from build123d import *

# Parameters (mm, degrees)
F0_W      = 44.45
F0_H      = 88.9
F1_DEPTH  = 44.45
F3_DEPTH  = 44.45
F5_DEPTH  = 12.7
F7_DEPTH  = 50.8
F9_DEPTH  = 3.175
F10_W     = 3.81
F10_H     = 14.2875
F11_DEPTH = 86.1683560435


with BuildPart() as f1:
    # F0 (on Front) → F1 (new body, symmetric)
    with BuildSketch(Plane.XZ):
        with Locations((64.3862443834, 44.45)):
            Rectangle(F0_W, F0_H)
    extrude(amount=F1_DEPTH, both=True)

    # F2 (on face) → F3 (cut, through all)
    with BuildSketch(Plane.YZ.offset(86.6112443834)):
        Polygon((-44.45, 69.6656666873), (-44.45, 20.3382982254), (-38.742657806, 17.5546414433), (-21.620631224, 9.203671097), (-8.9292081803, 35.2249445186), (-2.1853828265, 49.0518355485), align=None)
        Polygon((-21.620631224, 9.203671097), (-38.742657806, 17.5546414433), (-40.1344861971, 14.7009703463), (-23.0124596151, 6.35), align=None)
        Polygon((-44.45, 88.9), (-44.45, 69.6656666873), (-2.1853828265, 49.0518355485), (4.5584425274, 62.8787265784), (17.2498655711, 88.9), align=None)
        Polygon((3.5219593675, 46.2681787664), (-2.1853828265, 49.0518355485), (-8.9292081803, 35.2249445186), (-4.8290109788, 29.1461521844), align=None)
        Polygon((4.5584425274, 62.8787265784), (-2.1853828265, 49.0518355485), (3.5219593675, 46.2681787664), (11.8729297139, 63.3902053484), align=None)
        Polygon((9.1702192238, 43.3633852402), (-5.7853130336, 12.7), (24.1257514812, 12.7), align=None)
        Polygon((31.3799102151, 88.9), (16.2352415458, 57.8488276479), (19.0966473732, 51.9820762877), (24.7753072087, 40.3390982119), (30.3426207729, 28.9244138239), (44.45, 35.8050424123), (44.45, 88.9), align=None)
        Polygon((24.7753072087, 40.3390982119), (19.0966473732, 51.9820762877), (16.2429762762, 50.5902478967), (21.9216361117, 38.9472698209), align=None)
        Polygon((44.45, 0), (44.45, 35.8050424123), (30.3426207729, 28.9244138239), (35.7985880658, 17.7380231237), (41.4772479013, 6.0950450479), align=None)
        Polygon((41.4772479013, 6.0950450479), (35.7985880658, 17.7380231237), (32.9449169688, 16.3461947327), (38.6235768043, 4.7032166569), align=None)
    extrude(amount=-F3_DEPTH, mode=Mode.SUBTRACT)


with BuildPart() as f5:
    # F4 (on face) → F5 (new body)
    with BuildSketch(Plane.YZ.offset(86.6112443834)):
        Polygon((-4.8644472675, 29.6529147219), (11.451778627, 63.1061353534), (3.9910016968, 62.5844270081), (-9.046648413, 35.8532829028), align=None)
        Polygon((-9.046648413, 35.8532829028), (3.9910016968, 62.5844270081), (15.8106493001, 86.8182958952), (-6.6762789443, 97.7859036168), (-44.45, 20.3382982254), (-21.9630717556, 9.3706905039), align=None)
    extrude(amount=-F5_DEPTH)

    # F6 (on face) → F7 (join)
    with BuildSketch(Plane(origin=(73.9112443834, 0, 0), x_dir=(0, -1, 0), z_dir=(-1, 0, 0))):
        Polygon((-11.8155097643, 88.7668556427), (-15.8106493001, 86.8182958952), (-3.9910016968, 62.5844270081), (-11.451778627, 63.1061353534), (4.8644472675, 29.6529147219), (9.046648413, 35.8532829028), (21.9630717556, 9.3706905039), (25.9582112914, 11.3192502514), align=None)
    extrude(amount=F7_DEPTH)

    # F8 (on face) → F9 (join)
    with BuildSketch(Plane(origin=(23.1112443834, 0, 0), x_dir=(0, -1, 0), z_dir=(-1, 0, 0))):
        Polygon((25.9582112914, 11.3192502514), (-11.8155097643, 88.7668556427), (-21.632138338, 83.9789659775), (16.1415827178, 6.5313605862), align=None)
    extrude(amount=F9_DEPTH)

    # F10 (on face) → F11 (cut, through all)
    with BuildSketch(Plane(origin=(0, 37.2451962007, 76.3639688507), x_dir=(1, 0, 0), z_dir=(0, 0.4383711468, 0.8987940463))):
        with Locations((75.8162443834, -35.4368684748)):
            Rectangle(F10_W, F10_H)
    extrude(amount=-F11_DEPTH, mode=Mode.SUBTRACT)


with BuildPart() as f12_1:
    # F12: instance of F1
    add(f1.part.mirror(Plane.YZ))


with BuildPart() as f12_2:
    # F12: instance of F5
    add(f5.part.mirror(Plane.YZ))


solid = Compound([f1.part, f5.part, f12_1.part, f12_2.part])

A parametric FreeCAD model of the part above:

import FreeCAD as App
import Part
import Sketcher
from FreeCAD import Vector
Q = App.Units.Quantity

doc = App.newDocument("Part")
body = doc.addObject("PartDesign::Body", "Body")

sketch1 = body.newObject("Sketcher::SketchObject", "Sketch")
sketch1.AttachmentSupport = (doc.getObject("XZ_Plane"), [""])
sketch1.MapMode = "FlatFace"
sketch1.addGeometry([
    Part.LineSegment(Vector(42, 89, 0), Vector(42, 0, 0)),
    Part.LineSegment(Vector(42, 0, 0), Vector(87, 0, 0)),
    Part.LineSegment(Vector(87, 0, 0), Vector(87, 89, 0)),
    Part.LineSegment(Vector(87, 89, 0), Vector(42, 89, 0)),
], False)
sketch1.addConstraint([
    Sketcher.Constraint("Coincident", 0, 2, 1, 1),
    Sketcher.Constraint("Coincident", 1, 2, 2, 1),
    Sketcher.Constraint("Coincident", 2, 2, 3, 1),
    Sketcher.Constraint("Coincident", 3, 2, 0, 1),
    Sketcher.Constraint("Vertical", 0),
    Sketcher.Constraint("Horizontal", 1),
    Sketcher.Constraint("Vertical", 2),
    Sketcher.Constraint("Horizontal", 3),
    Sketcher.Constraint("PointOnObject", 0, 2, -1),
    Sketcher.Constraint("DistanceY", 0, 2, 0, 1, Q("3.5 in")),
    Sketcher.Constraint("DistanceX", 1, 1, 1, 2, Q("1.75 in")),
    Sketcher.Constraint("DistanceX", -1, 1, 0, 2, Q("42.161244 mm")),
])
pad1 = body.newObject("PartDesign::Pad", "Pad")
pad1.Profile = sketch1
pad1.Length = Q("3.5 in")
pad1.Midplane = True

sketch2 = body.newObject("Sketcher::SketchObject", "Sketch001")
sketch2.AttachmentSupport = (doc.getObject("YZ_Plane"), [""])
sketch2.MapMode = "FlatFace"
sketch2.AttachmentOffset = App.Placement(Vector(0, 0, 86.611244), App.Rotation())
sketch2.addGeometry([
    Part.LineSegment(Vector(-44.5, 20.3, 0), Vector(-38.7, 17.6, 0)),
    Part.LineSegment(Vector(-38.7, 17.6, 0), Vector(-40.1, 14.7, 0)),
    Part.LineSegment(Vector(-40.1, 14.7, 0), Vector(-23, 6.3, 0)),
    Part.LineSegment(Vector(-23, 6.3, 0), Vector(-21.6, 9.2, 0)),
    Part.LineSegment(Vector(-21.6, 9.2, 0), Vector(-8.9, 35.2, 0)),
    Part.LineSegment(Vector(-8.9, 35.2, 0), Vector(-4.8, 29.1, 0)),
    Part.LineSegment(Vector(-4.8, 29.1, 0), Vector(3.5, 46.3, 0)),
    Part.LineSegment(Vector(3.5, 46.3, 0), Vector(11.9, 63.4, 0)),
    Part.LineSegment(Vector(11.9, 63.4, 0), Vector(4.6, 62.9, 0)),
    Part.LineSegment(Vector(4.6, 62.9, 0), Vector(17.2, 88.9, 0)),
    Part.LineSegment(Vector(17.2, 88.9, 0), Vector(-44.5, 88.9, 0)),
    Part.LineSegment(Vector(-44.5, 88.9, 0), Vector(-44.5, 20.3, 0)),
    Part.LineSegment(Vector(9.2, 43.4, 0), Vector(-5.8, 12.7, 0)),
    Part.LineSegment(Vector(-5.8, 12.7, 0), Vector(24.1, 12.7, 0)),
    Part.LineSegment(Vector(24.1, 12.7, 0), Vector(9.2, 43.4, 0)),
    Part.LineSegment(Vector(31.4, 88.9, 0), Vector(16.2, 57.8, 0)),
    Part.LineSegment(Vector(16.2, 57.8, 0), Vector(19.1, 52, 0)),
    Part.LineSegment(Vector(19.1, 52, 0), Vector(16.2, 50.6, 0)),
    Part.LineSegment(Vector(16.2, 50.6, 0), Vector(21.9, 38.9, 0)),
    Part.LineSegment(Vector(21.9, 38.9, 0), Vector(24.8, 40.3, 0)),
    Part.LineSegment(Vector(24.8, 40.3, 0), Vector(35.8, 17.7, 0)),
    Part.LineSegment(Vector(35.8, 17.7, 0), Vector(32.9, 16.3, 0)),
    Part.LineSegment(Vector(32.9, 16.3, 0), Vector(38.6, 4.7, 0)),
    Part.LineSegment(Vector(38.6, 4.7, 0), Vector(41.5, 6.1, 0)),
    Part.LineSegment(Vector(41.5, 6.1, 0), Vector(44.5, 0, 0)),
    Part.LineSegment(Vector(44.5, 0, 0), Vector(44.5, 88.9, 0)),
    Part.LineSegment(Vector(44.5, 88.9, 0), Vector(31.4, 88.9, 0)),
], False)
sketch2.addConstraint([
    Sketcher.Constraint("Coincident", 0, 2, 1, 1),
    Sketcher.Constraint("Coincident", 1, 2, 2, 1),
    Sketcher.Constraint("Coincident", 2, 2, 3, 1),
    Sketcher.Constraint("Coincident", 3, 2, 4, 1),
    Sketcher.Constraint("Coincident", 4, 2, 5, 1),
    Sketcher.Constraint("Coincident", 5, 2, 6, 1),
    Sketcher.Constraint("Coincident", 6, 2, 7, 1),
    Sketcher.Constraint("Coincident", 7, 2, 8, 1),
    Sketcher.Constraint("Coincident", 8, 2, 9, 1),
    Sketcher.Constraint("Coincident", 9, 2, 10, 1),
    Sketcher.Constraint("Coincident", 10, 2, 11, 1),
    Sketcher.Constraint("Coincident", 11, 2, 0, 1),
    Sketcher.Constraint("Coincident", 12, 2, 13, 1),
    Sketcher.Constraint("Coincident", 13, 2, 14, 1),
    Sketcher.Constraint("Coincident", 14, 2, 12, 1),
    Sketcher.Constraint("Coincident", 15, 2, 16, 1),
    Sketcher.Constraint("Coincident", 16, 2, 17, 1),
    Sketcher.Constraint("Coincident", 17, 2, 18, 1),
    Sketcher.Constraint("Coincident", 18, 2, 19, 1),
    Sketcher.Constraint("Coincident", 19, 2, 20, 1),
    Sketcher.Constraint("Coincident", 20, 2, 21, 1),
    Sketcher.Constraint("Coincident", 21, 2, 22, 1),
    Sketcher.Constraint("Coincident", 22, 2, 23, 1),
    Sketcher.Constraint("Coincident", 23, 2, 24, 1),
    Sketcher.Constraint("Coincident", 24, 2, 25, 1),
    Sketcher.Constraint("Coincident", 25, 2, 26, 1),
    Sketcher.Constraint("Coincident", 26, 2, 15, 1),
    Sketcher.Constraint("Horizontal", 10),
    Sketcher.Constraint("Vertical", 11),
    Sketcher.Constraint("Horizontal", 13),
    Sketcher.Constraint("Vertical", 25),
    Sketcher.Constraint("Horizontal", 26),
    Sketcher.Constraint("Symmetric", 10, 2, 25, 2, -2),
    Sketcher.Constraint("PointOnObject", 24, 2, -1),
    Sketcher.Constraint("Perpendicular", 0, 1),
    Sketcher.Constraint("Perpendicular", 1, 2),
    Sketcher.Constraint("Perpendicular", 2, 3),
    Sketcher.Constraint("Parallel", 3, 4),
    Sketcher.Constraint("Parallel", 4, 6),
    Sketcher.Constraint("Parallel", 6, 7),
    Sketcher.Constraint("Parallel", 7, 9),
    Sketcher.Constraint("Parallel", 9, 12),
    Sketcher.Constraint("Parallel", 12, 15),
    Sketcher.Constraint("Parallel", 14, 16),
    Sketcher.Constraint("Perpendicular", 16, 17),
    Sketcher.Constraint("Perpendicular", 17, 18),
    Sketcher.Constraint("Perpendicular", 18, 19),
    Sketcher.Constraint("Perpendicular", 19, 20),
    Sketcher.Constraint("Perpendicular", 20, 21),
    Sketcher.Constraint("Perpendicular", 21, 22),
    Sketcher.Constraint("Perpendicular", 22, 23),
    Sketcher.Constraint("Perpendicular", 23, 24),
    Sketcher.Constraint("Equal", 1, 3),
    Sketcher.Constraint("Equal", 2, 6),
    Sketcher.Constraint("Equal", 6, 7),
    Sketcher.Constraint("Equal", 5, 8),
    Sketcher.Constraint("Equal", 4, 9),
    Sketcher.Constraint("Equal", 12, 14),
    Sketcher.Constraint("Equal", 3, 17),
    Sketcher.Constraint("Equal", 17, 19),
    Sketcher.Constraint("Equal", 19, 21),
    Sketcher.Constraint("Equal", 18, 22),
    Sketcher.Constraint("Equal", 21, 23),
    Sketcher.Constraint("DistanceY", 25, 1, 25, 2, Q("3.5 in")),
    Sketcher.Constraint("Angle", 0, Q("-26 deg")),
    Sketcher.Constraint("Angle", 5, Q("-56 deg")),
    Sketcher.Constraint("Angle", 8, Q("-176 deg")),
    Sketcher.Constraint("DistanceY", -1, 1, 12, 2, Q("0.5 in")),
    Sketcher.Constraint("Distance", 0, Q("0.25 in")),
    Sketcher.Constraint("Distance", 2, Q("0.75 in")),
    Sketcher.Constraint("Distance", 18, Q("0.51 in")),
    Sketcher.Constraint("Distance", 20, Q("0.99 in")),
    Sketcher.Constraint("DistanceY", -1, 1, 2, 2, Q("0.25 in")),
    Sketcher.Constraint("DistanceX", 10, 2, -1, 1, Q("1.75 in")),
    Sketcher.Constraint("Distance", 1, Q("0.125 in")),
    Sketcher.Constraint("DistanceX", 26, 2, 26, 1, Q("13.07009 mm")),
    Sketcher.Constraint("DistanceY", -1, 1, 19, 2, Q("40.339098 mm")),
    Sketcher.Constraint("DistanceX", 8, 2, 15, 2, Q("11.676799 mm")),
    Sketcher.Constraint("Distance", 12, Q("34.116142 mm")),
    Sketcher.Constraint("DistanceX", -1, 1, 13, 2, Q("24.125751 mm")),
])
pocket1 = body.newObject("PartDesign::Pocket", "Pocket")
pocket1.Profile = sketch2
pocket1.Type = "ThroughAll"
body2 = doc.addObject("PartDesign::Body", "Body001")

sketch3 = body2.newObject("Sketcher::SketchObject", "Sketch002")
sketch3.AttachmentSupport = (doc.getObject("YZ_Plane001"), [""])
sketch3.MapMode = "FlatFace"
sketch3.AttachmentOffset = App.Placement(Vector(0, 0, 86.611244), App.Rotation())
sketch3.addGeometry([
    Part.LineSegment(Vector(-5, 30, 0), Vector(11, 63, 0)),
    Part.LineSegment(Vector(11, 63, 0), Vector(4, 63, 0)),
    Part.LineSegment(Vector(4, 63, 0), Vector(16, 87, 0)),
    Part.LineSegment(Vector(16, 87, 0), Vector(-7, 98, 0)),
    Part.LineSegment(Vector(-7, 98, 0), Vector(-44, 20, 0)),
    Part.LineSegment(Vector(-44, 20, 0), Vector(-22, 9, 0)),
    Part.LineSegment(Vector(-22, 9, 0), Vector(-9, 36, 0)),
    Part.LineSegment(Vector(-9, 36, 0), Vector(-5, 30, 0)),
], False)
sketch3.addConstraint([
    Sketcher.Constraint("Coincident", 0, 2, 1, 1),
    Sketcher.Constraint("Coincident", 1, 2, 2, 1),
    Sketcher.Constraint("Coincident", 2, 2, 3, 1),
    Sketcher.Constraint("Coincident", 3, 2, 4, 1),
    Sketcher.Constraint("Coincident", 4, 2, 5, 1),
    Sketcher.Constraint("Coincident", 5, 2, 6, 1),
    Sketcher.Constraint("Coincident", 6, 2, 7, 1),
    Sketcher.Constraint("Coincident", 7, 2, 0, 1),
    Sketcher.Constraint("Parallel", 0, 2),
    Sketcher.Constraint("Perpendicular", 2, 3),
    Sketcher.Constraint("Perpendicular", 3, 4),
    Sketcher.Constraint("Perpendicular", 4, 5),
    Sketcher.Constraint("Perpendicular", 5, 6),
    Sketcher.Constraint("Equal", 3, 5),
    Sketcher.Constraint("Equal", 1, 7),
    Sketcher.Constraint("Angle", 0, Q("64 deg")),
    Sketcher.Constraint("Angle", 1, Q("-176 deg")),
    Sketcher.Constraint("DistanceX", 4, 2, -1, 1, Q("1.75 in")),
    Sketcher.Constraint("Distance", 3, Q("0.985 in")),
    Sketcher.Constraint("DistanceX", -1, 1, 1, 2, Q("3.991002 mm")),
    Sketcher.Constraint("DistanceY", -1, 1, 4, 2, Q("20.338298 mm")),
    Sketcher.Constraint("DistanceX", 6, 2, 7, 2, Q("4.182201 mm")),
    Sketcher.Constraint("Distance", 0, Q("37.220118 mm")),
    Sketcher.Constraint("Distance", 2, Q("26.96265 mm")),
])
pad2 = body2.newObject("PartDesign::Pad", "Pad001")
pad2.Profile = sketch3
pad2.Length = Q("0.5 in")
pad2.Reversed = True

sketch4 = body2.newObject("Sketcher::SketchObject", "Sketch003")
sketch4.AttachmentSupport = (doc.getObject("YZ_Plane001"), [""])
sketch4.MapMode = "FlatFace"
sketch4.AttachmentOffset = App.Placement(Vector(0, 0, 73.911244), App.Rotation())
sketch4.addGeometry([
    Part.LineSegment(Vector(11.8, 88.8, 0), Vector(15.8, 86.8, 0)),
    Part.LineSegment(Vector(15.8, 86.8, 0), Vector(4, 62.6, 0)),
    Part.LineSegment(Vector(4, 62.6, 0), Vector(11.5, 63.1, 0)),
    Part.LineSegment(Vector(11.5, 63.1, 0), Vector(-4.9, 29.7, 0)),
    Part.LineSegment(Vector(-4.9, 29.7, 0), Vector(-9, 35.9, 0)),
    Part.LineSegment(Vector(-9, 35.9, 0), Vector(-22, 9.4, 0)),
    Part.LineSegment(Vector(-22, 9.4, 0), Vector(-26, 11.3, 0)),
    Part.LineSegment(Vector(-26, 11.3, 0), Vector(11.8, 88.8, 0)),
], False)
sketch4.addConstraint([
    Sketcher.Constraint("Coincident", 0, 2, 1, 1),
    Sketcher.Constraint("Coincident", 1, 2, 2, 1),
    Sketcher.Constraint("Coincident", 2, 2, 3, 1),
    Sketcher.Constraint("Coincident", 3, 2, 4, 1),
    Sketcher.Constraint("Coincident", 4, 2, 5, 1),
    Sketcher.Constraint("Coincident", 5, 2, 6, 1),
    Sketcher.Constraint("Coincident", 6, 2, 7, 1),
    Sketcher.Constraint("Coincident", 7, 2, 0, 1),
    Sketcher.Constraint("Perpendicular", 0, 1),
    Sketcher.Constraint("Parallel", 1, 3),
    Sketcher.Constraint("Parallel", 3, 5),
    Sketcher.Constraint("Perpendicular", 5, 6),
    Sketcher.Constraint("Perpendicular", 6, 7),
    Sketcher.Constraint("Equal", 2, 4),
    Sketcher.Constraint("Equal", 0, 6),
    Sketcher.Constraint("Angle", 0, Q("-26 deg")),
    Sketcher.Constraint("Angle", 2, Q("4 deg")),
    Sketcher.Constraint("Distance", 0, Q("0.175 in")),
    Sketcher.Constraint("DistanceX", -1, 1, 1, 2, Q("3.991002 mm")),
    Sketcher.Constraint("DistanceX", 4, 2, 3, 2, Q("4.182201 mm")),
    Sketcher.Constraint("Distance", 1, Q("26.96265 mm")),
    Sketcher.Constraint("Distance", 3, Q("37.220118 mm")),
    Sketcher.Constraint("DistanceX", 5, 2, -1, 1, Q("21.963072 mm")),
    Sketcher.Constraint("DistanceY", -1, 1, 5, 2, Q("9.370691 mm")),
])
pad3 = body2.newObject("PartDesign::Pad", "Pad002")
pad3.Profile = sketch4
pad3.Length = Q("2 in")
pad3.Reversed = True

sketch5 = body2.newObject("Sketcher::SketchObject", "Sketch004")
sketch5.AttachmentSupport = (doc.getObject("YZ_Plane001"), [""])
sketch5.MapMode = "FlatFace"
sketch5.AttachmentOffset = App.Placement(Vector(0, 0, 23.111244), App.Rotation())
sketch5.addGeometry([
    Part.LineSegment(Vector(-26, 11, 0), Vector(12, 89, 0)),
    Part.LineSegment(Vector(12, 89, 0), Vector(22, 84, 0)),
    Part.LineSegment(Vector(22, 84, 0), Vector(-16, 7, 0)),
    Part.LineSegment(Vector(-16, 7, 0), Vector(-26, 11, 0)),
], False)
sketch5.addConstraint([
    Sketcher.Constraint("Coincident", 0, 2, 1, 1),
    Sketcher.Constraint("Coincident", 1, 2, 2, 1),
    Sketcher.Constraint("Coincident", 2, 2, 3, 1),
    Sketcher.Constraint("Coincident", 3, 2, 0, 1),
    Sketcher.Constraint("Perpendicular", 0, 1),
    Sketcher.Constraint("Perpendicular", 1, 2),
    Sketcher.Constraint("Perpendicular", 2, 3),
    Sketcher.Constraint("Angle", 0, Q("64 deg")),
    Sketcher.Constraint("Distance", 1, Q("0.43 in")),
    Sketcher.Constraint("DistanceX", -1, 1, 0, 2, Q("11.81551 mm")),
    Sketcher.Constraint("DistanceY", -1, 1, 2, 2, Q("6.531361 mm")),
    Sketcher.Constraint("DistanceX", 3, 2, -1, 1, Q("25.958211 mm")),
])
pad4 = body2.newObject("PartDesign::Pad", "Pad003")
pad4.Profile = sketch5
pad4.Length = Q("0.125 in")
pad4.Reversed = True

sketch6 = body2.newObject("Sketcher::SketchObject", "Sketch005")
sketch6.Placement = App.Placement(Vector(0, 37.245196, 76.363969), App.Rotation(Vector(1, 0, 0), Vector(0, 0.898794046, -0.438371147), Vector(0, 0.438371147, 0.898794046), "ZXY"))
sketch6.addGeometry([
    Part.LineSegment(Vector(73.9, -28.3, 0), Vector(73.9, -42.6, 0)),
    Part.LineSegment(Vector(73.9, -42.6, 0), Vector(77.7, -42.6, 0)),
    Part.LineSegment(Vector(77.7, -42.6, 0), Vector(77.7, -28.3, 0)),
    Part.LineSegment(Vector(77.7, -28.3, 0), Vector(73.9, -28.3, 0)),
], False)
sketch6.addConstraint([
    Sketcher.Constraint("Coincident", 0, 2, 1, 1),
    Sketcher.Constraint("Coincident", 1, 2, 2, 1),
    Sketcher.Constraint("Coincident", 2, 2, 3, 1),
    Sketcher.Constraint("Coincident", 3, 2, 0, 1),
    Sketcher.Constraint("Vertical", 0),
    Sketcher.Constraint("Horizontal", 1),
    Sketcher.Constraint("Vertical", 2),
    Sketcher.Constraint("Horizontal", 3),
    Sketcher.Constraint("DistanceX", 1, 1, 1, 2, Q("0.15 in")),
    Sketcher.Constraint("DistanceY", 0, 2, 0, 1, Q("0.5625 in")),
    Sketcher.Constraint("DistanceY", 0, 2, -1, 1, Q("42.580618 mm")),
    Sketcher.Constraint("DistanceX", -1, 1, 0, 2, Q("73.911244 mm")),
])
pocket2 = body2.newObject("PartDesign::Pocket", "Pocket001")
pocket2.Profile = sketch6
pocket2.Type = "ThroughAll"
body3 = doc.addObject("PartDesign::Body", "Body002")
doc.recompute()

mirroring = doc.addObject("Part::Mirroring", "Mirroring")
mirroring.Source = body
mirroring.Base = Vector(0, 0, 0)
mirroring.Normal = Vector(1, 0, 0)
body3.BaseFeature = mirroring
doc.recompute()
body4 = doc.addObject("PartDesign::Body", "Body003")
doc.recompute()

mirroring2 = doc.addObject("Part::Mirroring", "Mirroring001")
mirroring2.Source = body2
mirroring2.Base = Vector(0, 0, 0)
mirroring2.Normal = Vector(1, 0, 0)
body4.BaseFeature = mirroring2
doc.recompute()
mirroring.Visibility = False
mirroring2.Visibility = False

doc.recompute()
